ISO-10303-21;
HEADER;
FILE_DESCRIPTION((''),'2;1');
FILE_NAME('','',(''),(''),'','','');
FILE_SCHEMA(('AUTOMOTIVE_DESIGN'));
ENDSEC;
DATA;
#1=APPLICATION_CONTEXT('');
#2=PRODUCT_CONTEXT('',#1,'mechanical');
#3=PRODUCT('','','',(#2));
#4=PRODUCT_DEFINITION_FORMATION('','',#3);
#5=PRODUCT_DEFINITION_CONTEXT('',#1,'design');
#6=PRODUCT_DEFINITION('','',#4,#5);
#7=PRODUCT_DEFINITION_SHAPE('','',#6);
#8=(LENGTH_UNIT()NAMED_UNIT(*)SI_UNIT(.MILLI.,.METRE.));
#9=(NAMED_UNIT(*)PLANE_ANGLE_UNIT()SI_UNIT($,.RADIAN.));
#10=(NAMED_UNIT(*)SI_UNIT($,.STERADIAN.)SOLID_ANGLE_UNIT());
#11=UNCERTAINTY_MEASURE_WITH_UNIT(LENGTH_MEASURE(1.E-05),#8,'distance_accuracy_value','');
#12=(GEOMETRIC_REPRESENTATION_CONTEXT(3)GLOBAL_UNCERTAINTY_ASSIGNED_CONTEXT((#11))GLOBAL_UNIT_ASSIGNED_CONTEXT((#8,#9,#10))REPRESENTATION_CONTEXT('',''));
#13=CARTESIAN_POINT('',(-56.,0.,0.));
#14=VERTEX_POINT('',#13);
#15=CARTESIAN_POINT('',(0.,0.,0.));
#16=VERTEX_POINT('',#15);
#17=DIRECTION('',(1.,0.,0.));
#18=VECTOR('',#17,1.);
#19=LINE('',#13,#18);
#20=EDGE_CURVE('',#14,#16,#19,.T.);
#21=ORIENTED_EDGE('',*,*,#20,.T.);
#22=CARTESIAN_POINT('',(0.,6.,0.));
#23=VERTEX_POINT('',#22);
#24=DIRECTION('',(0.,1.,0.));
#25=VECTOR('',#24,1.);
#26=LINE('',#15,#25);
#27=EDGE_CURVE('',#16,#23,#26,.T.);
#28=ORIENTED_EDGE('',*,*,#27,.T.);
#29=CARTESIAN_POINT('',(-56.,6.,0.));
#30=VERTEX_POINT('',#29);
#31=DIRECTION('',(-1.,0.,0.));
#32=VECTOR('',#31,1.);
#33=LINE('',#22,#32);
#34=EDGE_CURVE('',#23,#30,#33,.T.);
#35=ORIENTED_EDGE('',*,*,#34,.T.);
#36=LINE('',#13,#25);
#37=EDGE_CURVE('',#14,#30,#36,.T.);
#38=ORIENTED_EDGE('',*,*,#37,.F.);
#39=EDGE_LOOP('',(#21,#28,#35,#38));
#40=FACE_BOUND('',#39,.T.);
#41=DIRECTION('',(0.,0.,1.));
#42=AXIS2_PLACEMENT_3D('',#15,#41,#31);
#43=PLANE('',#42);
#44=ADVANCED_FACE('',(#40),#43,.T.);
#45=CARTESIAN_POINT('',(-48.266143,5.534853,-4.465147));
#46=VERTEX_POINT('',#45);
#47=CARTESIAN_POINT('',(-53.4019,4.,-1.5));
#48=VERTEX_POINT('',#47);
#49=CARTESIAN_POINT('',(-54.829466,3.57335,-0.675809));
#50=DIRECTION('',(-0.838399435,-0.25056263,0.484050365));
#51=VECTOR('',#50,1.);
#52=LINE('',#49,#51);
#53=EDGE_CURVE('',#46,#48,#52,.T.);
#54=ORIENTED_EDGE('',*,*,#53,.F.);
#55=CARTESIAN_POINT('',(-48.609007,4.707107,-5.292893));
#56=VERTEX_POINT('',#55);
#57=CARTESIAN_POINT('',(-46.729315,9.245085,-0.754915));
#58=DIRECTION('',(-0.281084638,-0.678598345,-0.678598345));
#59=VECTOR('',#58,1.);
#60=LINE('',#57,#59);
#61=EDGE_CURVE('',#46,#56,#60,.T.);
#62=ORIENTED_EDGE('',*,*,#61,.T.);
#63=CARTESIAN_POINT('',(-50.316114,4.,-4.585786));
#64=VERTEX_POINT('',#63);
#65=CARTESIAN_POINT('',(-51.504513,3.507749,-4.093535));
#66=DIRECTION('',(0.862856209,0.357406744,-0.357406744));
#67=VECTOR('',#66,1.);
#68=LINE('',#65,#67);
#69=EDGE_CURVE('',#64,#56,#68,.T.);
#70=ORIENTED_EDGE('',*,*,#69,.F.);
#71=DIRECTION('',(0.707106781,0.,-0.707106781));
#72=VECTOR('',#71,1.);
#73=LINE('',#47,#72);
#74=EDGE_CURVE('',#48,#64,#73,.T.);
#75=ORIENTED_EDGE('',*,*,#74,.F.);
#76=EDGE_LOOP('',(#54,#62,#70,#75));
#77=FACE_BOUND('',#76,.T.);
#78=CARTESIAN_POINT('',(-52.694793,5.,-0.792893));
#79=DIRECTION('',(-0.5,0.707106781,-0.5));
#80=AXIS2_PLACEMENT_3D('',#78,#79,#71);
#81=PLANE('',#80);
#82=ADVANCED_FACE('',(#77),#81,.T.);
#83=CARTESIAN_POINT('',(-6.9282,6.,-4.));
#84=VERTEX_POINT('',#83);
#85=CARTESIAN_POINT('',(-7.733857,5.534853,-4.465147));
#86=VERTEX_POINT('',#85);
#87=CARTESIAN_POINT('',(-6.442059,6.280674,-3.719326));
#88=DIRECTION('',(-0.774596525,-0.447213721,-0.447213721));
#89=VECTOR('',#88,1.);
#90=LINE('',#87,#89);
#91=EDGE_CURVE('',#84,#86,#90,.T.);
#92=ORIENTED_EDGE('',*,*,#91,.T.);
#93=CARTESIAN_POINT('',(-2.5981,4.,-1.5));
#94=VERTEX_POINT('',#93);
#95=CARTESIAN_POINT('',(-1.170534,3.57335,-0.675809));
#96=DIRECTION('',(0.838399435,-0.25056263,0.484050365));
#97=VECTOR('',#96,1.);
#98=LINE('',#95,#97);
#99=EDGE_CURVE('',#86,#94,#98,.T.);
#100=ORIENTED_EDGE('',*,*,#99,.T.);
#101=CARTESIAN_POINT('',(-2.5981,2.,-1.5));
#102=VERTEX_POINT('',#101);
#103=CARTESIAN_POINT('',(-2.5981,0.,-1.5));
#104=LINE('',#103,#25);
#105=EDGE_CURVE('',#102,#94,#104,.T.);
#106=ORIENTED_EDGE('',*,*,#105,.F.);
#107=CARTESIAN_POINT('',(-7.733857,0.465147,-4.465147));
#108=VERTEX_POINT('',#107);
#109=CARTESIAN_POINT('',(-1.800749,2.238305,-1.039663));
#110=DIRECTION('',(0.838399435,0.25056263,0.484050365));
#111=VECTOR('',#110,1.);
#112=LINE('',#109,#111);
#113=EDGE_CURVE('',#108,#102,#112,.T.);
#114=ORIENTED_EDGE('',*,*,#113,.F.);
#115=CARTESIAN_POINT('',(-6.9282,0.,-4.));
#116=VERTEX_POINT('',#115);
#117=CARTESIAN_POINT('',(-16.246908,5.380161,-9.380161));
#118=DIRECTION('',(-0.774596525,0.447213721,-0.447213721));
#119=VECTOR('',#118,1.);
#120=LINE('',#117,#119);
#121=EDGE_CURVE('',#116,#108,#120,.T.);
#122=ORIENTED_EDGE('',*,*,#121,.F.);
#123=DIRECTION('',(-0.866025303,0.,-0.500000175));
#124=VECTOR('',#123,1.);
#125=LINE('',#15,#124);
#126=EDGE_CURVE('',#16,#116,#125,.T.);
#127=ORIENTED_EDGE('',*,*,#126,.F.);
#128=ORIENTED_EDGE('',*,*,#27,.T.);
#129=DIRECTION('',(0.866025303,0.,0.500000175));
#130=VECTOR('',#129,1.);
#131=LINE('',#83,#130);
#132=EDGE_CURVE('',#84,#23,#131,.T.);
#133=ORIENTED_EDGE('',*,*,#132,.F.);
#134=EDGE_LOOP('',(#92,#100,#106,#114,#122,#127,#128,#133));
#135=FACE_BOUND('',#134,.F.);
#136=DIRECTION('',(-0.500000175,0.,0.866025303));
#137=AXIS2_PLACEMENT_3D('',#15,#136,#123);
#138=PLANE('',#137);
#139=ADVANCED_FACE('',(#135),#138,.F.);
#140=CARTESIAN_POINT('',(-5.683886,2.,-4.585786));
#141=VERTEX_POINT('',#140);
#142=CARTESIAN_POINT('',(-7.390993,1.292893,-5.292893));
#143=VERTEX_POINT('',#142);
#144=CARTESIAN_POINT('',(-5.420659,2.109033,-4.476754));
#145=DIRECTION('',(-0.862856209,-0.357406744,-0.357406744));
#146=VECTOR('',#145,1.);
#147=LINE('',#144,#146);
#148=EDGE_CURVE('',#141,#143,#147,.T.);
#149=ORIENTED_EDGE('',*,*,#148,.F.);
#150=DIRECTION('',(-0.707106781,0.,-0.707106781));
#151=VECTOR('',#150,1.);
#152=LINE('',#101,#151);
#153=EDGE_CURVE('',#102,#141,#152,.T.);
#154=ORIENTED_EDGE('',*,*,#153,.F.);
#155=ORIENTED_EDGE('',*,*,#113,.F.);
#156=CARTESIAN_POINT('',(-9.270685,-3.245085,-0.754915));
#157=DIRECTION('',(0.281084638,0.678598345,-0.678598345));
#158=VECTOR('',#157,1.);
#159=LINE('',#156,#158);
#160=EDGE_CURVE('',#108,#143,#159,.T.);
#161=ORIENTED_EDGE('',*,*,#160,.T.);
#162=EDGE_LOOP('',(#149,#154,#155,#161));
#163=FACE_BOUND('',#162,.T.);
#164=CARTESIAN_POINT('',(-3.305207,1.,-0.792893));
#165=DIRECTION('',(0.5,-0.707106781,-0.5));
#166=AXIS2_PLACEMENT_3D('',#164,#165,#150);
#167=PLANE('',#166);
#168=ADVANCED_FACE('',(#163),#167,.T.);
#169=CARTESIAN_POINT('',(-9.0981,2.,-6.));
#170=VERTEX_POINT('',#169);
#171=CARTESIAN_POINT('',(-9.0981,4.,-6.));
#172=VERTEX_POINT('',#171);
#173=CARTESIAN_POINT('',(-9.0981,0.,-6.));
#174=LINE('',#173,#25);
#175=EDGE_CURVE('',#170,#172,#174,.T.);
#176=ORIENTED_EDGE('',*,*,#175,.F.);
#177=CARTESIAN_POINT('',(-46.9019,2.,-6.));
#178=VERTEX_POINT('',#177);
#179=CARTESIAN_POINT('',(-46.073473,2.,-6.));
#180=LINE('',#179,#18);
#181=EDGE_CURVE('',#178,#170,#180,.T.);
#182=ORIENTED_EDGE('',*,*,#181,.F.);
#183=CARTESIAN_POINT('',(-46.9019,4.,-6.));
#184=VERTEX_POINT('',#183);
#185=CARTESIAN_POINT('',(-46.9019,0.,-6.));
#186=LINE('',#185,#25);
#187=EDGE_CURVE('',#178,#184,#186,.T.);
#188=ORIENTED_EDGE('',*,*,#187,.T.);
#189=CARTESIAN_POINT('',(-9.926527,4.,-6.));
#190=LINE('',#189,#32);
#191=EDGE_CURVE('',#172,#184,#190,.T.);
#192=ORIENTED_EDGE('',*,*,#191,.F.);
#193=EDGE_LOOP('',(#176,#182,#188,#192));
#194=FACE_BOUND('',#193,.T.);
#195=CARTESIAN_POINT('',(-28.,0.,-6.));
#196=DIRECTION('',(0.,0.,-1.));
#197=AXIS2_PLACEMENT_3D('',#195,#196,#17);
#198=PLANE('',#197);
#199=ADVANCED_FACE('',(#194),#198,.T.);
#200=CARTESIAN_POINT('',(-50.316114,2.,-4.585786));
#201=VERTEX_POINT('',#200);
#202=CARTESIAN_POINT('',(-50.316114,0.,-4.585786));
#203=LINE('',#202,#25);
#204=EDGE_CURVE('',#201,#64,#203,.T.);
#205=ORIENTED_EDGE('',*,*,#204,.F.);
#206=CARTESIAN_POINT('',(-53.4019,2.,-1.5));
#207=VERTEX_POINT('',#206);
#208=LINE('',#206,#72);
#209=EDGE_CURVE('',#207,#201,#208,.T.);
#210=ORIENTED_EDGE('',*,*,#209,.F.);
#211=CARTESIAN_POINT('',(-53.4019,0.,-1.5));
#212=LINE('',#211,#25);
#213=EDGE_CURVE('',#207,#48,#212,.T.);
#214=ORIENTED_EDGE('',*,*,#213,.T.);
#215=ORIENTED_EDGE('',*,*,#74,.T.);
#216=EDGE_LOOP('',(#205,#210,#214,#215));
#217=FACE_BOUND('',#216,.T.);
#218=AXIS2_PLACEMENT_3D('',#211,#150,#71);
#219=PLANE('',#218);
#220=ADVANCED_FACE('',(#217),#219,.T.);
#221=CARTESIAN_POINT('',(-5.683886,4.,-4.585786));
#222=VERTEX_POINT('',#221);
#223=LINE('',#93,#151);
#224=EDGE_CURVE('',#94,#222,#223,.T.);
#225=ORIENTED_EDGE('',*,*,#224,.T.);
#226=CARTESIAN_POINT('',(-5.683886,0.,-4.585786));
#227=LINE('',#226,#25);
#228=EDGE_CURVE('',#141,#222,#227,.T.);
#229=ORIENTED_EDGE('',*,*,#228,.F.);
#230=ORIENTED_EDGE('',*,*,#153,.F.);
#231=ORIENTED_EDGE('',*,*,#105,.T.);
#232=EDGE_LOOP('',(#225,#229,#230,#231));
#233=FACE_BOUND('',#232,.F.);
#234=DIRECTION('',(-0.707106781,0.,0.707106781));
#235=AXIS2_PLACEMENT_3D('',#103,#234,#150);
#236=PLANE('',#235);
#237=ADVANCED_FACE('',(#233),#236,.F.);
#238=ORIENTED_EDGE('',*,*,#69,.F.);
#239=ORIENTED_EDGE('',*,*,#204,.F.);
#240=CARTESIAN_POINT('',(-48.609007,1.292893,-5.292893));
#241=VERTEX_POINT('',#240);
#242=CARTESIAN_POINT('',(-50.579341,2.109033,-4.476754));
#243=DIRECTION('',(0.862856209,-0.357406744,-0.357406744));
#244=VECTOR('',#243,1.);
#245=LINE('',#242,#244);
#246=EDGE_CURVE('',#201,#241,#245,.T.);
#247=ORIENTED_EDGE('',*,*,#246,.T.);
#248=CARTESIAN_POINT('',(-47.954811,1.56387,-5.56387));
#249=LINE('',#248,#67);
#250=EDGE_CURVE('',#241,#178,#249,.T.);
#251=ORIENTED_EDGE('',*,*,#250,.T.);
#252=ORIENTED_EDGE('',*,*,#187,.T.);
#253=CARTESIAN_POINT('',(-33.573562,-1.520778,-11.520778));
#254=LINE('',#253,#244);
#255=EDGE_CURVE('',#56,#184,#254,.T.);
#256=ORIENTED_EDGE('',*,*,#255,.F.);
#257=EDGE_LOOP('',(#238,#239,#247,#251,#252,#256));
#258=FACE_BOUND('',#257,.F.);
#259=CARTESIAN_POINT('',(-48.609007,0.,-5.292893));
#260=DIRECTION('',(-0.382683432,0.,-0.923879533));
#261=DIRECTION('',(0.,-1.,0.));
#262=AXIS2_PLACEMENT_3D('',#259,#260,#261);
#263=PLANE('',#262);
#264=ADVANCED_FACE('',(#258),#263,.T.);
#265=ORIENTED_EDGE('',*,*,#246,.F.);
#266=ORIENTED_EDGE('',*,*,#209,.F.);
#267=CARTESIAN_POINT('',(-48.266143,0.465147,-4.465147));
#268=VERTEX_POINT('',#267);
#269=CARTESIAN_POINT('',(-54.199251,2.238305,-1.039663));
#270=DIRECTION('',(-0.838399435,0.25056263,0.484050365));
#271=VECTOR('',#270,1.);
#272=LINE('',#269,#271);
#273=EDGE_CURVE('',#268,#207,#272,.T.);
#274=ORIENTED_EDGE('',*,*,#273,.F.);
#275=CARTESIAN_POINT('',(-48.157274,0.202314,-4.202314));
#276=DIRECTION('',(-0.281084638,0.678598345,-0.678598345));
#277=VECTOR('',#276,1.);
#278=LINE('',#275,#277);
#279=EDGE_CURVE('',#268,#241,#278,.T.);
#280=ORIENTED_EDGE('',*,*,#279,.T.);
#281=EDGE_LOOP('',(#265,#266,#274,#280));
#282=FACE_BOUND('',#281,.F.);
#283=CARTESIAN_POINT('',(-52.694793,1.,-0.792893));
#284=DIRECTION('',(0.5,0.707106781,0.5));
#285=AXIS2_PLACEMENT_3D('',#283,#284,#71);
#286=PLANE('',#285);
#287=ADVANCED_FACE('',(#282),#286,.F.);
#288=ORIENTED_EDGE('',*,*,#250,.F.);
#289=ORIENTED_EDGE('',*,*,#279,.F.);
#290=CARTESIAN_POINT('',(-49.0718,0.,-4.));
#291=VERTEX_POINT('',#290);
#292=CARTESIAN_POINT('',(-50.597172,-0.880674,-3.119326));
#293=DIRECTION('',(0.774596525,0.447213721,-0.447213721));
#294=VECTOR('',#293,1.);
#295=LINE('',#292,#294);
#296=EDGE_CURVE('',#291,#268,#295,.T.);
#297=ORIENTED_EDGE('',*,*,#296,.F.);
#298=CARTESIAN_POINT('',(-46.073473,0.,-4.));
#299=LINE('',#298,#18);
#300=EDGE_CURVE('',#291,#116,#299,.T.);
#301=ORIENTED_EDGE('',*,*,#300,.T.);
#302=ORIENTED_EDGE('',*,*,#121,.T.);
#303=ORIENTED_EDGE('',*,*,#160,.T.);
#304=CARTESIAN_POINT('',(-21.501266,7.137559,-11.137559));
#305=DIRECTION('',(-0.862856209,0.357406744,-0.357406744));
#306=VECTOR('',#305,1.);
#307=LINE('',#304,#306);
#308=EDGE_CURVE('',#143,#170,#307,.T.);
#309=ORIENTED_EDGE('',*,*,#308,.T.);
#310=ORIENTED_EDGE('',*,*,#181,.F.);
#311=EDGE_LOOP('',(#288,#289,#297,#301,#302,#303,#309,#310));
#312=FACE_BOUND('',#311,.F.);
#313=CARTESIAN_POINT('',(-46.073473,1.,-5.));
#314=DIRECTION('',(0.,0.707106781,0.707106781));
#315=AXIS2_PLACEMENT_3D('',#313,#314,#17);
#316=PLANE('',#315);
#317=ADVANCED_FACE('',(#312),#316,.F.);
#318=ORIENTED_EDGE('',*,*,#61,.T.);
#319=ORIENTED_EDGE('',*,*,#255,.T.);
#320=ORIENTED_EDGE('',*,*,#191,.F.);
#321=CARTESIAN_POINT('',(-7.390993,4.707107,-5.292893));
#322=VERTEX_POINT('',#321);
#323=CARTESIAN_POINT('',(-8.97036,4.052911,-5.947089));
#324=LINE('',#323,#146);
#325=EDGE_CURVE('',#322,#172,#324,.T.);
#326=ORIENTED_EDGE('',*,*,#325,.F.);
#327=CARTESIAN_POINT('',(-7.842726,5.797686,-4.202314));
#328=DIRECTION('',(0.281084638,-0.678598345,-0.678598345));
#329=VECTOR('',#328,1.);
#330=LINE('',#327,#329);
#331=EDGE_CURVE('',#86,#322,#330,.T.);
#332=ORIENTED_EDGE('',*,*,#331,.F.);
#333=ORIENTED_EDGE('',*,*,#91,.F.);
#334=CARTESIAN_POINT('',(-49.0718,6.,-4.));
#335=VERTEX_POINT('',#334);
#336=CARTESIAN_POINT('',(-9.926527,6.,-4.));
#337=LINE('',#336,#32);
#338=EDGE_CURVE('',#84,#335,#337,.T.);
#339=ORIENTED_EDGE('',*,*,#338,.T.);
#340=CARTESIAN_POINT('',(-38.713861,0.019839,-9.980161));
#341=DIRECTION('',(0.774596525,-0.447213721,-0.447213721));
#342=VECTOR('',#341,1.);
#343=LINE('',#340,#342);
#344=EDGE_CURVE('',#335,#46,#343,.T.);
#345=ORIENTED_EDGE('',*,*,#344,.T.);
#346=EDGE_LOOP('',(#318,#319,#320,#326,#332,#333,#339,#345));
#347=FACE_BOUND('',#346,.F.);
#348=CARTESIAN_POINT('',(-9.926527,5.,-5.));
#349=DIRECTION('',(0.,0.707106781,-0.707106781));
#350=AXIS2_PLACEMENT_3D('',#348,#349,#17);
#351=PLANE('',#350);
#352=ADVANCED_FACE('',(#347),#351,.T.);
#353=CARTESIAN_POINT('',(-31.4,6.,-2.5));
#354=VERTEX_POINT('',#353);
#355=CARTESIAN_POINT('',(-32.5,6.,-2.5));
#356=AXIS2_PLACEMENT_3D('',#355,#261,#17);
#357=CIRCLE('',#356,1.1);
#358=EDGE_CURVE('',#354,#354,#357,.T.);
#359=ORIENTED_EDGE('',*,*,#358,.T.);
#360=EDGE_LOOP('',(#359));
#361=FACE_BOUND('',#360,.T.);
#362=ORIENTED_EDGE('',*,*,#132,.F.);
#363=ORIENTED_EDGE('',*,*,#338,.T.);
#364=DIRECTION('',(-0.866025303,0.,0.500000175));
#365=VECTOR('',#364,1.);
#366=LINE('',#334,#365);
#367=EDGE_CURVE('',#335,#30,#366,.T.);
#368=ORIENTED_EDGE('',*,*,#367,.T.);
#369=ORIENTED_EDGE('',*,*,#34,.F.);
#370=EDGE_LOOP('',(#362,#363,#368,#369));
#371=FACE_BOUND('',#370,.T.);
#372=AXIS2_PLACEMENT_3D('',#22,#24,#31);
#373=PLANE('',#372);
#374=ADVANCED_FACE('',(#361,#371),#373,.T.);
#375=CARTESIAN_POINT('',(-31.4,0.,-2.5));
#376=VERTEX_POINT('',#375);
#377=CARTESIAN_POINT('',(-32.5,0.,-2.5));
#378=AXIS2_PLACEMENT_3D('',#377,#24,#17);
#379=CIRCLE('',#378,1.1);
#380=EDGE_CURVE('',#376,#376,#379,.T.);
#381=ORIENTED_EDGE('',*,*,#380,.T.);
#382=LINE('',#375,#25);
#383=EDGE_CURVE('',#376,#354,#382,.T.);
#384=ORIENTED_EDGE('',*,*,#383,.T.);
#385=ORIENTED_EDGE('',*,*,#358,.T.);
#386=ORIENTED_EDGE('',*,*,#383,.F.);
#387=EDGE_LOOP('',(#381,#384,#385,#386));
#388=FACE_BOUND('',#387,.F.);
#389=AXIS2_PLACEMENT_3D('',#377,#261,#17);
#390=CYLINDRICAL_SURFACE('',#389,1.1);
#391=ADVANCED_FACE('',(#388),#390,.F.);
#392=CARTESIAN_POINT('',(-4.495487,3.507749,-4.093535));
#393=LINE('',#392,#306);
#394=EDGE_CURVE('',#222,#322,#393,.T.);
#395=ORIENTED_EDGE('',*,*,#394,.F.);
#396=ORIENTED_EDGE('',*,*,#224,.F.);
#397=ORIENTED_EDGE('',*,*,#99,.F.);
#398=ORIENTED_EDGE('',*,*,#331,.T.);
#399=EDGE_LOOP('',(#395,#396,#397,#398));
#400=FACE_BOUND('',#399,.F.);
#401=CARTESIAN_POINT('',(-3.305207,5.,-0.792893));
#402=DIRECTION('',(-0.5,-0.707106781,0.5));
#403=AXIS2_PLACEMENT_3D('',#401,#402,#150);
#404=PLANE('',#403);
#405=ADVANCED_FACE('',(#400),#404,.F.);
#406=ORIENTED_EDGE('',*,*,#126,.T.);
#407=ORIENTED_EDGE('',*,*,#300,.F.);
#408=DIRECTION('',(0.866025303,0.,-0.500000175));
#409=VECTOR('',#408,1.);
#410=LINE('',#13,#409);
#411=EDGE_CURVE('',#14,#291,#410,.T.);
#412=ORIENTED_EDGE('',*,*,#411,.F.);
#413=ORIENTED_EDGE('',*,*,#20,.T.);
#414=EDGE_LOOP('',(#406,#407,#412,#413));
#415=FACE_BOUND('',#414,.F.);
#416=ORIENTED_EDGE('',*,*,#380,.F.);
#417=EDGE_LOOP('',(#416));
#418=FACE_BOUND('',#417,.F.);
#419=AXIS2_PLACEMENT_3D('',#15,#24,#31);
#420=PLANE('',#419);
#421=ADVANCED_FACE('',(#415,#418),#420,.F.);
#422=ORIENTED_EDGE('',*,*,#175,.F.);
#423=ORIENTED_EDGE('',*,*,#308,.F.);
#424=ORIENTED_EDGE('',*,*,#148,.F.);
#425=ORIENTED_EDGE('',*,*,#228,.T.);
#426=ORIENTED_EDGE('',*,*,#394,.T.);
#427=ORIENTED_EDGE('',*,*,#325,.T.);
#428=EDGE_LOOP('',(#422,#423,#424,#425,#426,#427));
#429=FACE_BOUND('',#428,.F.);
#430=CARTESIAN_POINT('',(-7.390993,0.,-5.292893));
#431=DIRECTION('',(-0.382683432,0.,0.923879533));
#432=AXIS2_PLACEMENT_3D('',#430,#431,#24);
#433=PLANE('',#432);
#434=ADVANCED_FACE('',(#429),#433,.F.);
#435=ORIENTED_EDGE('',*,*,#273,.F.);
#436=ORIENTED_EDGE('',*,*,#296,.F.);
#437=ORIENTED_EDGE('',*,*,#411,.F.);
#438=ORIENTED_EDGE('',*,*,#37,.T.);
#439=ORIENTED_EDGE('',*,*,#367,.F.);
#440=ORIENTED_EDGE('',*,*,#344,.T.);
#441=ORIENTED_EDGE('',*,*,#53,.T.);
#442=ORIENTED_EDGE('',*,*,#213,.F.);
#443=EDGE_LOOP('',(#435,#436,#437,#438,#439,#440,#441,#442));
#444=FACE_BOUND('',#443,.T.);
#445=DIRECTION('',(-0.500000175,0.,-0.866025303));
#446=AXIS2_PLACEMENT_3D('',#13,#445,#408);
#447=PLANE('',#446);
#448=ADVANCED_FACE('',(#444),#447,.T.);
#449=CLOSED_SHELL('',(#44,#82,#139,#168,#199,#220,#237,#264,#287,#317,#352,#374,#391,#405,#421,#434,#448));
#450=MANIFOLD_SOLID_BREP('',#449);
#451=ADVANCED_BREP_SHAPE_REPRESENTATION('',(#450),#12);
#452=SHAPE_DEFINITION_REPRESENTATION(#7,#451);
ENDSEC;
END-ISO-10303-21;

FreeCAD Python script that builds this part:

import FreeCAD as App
import Part
import Sketcher
from FreeCAD import Vector
Q = App.Units.Quantity


def edges_at(feature, points):
    """Names of the edges that pass closest to the given points."""
    edges = feature.Shape.Edges
    near = lambda p: min(range(len(edges)), key=lambda i: edges[i].distToShape(Part.Vertex(*p))[0])
    return sorted({f"Edge{near(p) + 1}" for p in points})

doc = App.newDocument("Part")
body = doc.addObject("PartDesign::Body", "Body")

# Sketch on XZ plane
sketch1 = body.newObject("Sketcher::SketchObject", "Sketch")
sketch1.AttachmentSupport = (doc.getObject("XZ_Plane"), [""])
sketch1.MapMode = "FlatFace"
sketch1.addGeometry([
    Part.LineSegment(Vector(0, 0, 0), Vector(-2.6, -1.5, 0)),  # 0
    Part.LineSegment(Vector(-2.6, -1.5, 0), Vector(-7.1, -6, 0)),  # 1
    Part.LineSegment(Vector(-7.1, -6, 0), Vector(-48.9, -6, 0)),  # 2
    Part.LineSegment(Vector(-48.9, -6, 0), Vector(-53.4, -1.5, 0)),  # 3
    Part.LineSegment(Vector(-53.4, -1.5, 0), Vector(-56, 0, 0)),  # 4
    Part.LineSegment(Vector(-56, 0, 0), Vector(0, 0, 0)),  # 5
], False)
sketch1.addConstraint([
    Sketcher.Constraint("Coincident", 0, 2, 1, 1),
    Sketcher.Constraint("Coincident", 1, 2, 2, 1),
    Sketcher.Constraint("Coincident", 2, 2, 3, 1),
    Sketcher.Constraint("Coincident", 3, 2, 4, 1),
    Sketcher.Constraint("Coincident", 4, 2, 5, 1),
    Sketcher.Constraint("Coincident", 5, 2, 0, 1),
    Sketcher.Constraint("Horizontal", 2),
    Sketcher.Constraint("Horizontal", 5),
    Sketcher.Constraint("Coincident", 5, 2, -1, 1),
    Sketcher.Constraint("Perpendicular", 1, 3),
    Sketcher.Constraint("Horizontal", 0, 2, 3, 2),
    Sketcher.Constraint("Equal", 1, 3),
    Sketcher.Constraint("Equal", 0, 4),
    Sketcher.Constraint("DistanceX", 5, 1, 5, 2, Q("56 mm")),
    Sketcher.Constraint("Angle", 0, Q("-150 deg")),
    Sketcher.Constraint("Distance", 0, Q("3 mm")),
    Sketcher.Constraint("DistanceY", 1, 2, -1, 1, Q("6 mm")),
])
pad1 = body.newObject("PartDesign::Pad", "Pad")
pad1.Profile = sketch1
pad1.Length = 6
pad1.Reversed = True
doc.recompute()

chamfer = body.newObject("PartDesign::Chamfer", "Chamfer")
chamfer.Base = (pad1, edges_at(pad1, [
    (-48.902, 3, -6),
    (-51.152, 6, -3.75),
    (-51.152, 0, -3.75),
    (-4.848, 0, -3.75),
    (-7.098, 3, -6),
    (-4.848, 6, -3.75),
]))
chamfer.Size = 2
doc.recompute()

chamfer2 = body.newObject("PartDesign::Chamfer", "Chamfer001")
chamfer2.Base = (chamfer, edges_at(chamfer, [(-37.037, 0, -6), (-37.037, 6, -6)]))
chamfer2.Size = 2

# Sketch on XZ plane
sketch2 = body.newObject("Sketcher::SketchObject", "Sketch001")
sketch2.AttachmentSupport = (doc.getObject("XZ_Plane"), [""])
sketch2.MapMode = "FlatFace"
sketch2.addGeometry(Part.Circle(Vector(-32.5, -2.5, 0), Vector(0, 0, 1), 1.1), False)
sketch2.addConstraint([
    Sketcher.Constraint("Diameter", 0, Q("2.2 mm")),
    Sketcher.Constraint("DistanceY", 0, 3, -1, 1, Q("2.5 mm")),
    Sketcher.Constraint("DistanceX", 0, 3, -1, 1, Q("32.5 mm")),
])
pocket1 = body.newObject("PartDesign::Pocket", "Pocket")
pocket1.Profile = sketch2
pocket1.Length = 50

doc.recompute()
